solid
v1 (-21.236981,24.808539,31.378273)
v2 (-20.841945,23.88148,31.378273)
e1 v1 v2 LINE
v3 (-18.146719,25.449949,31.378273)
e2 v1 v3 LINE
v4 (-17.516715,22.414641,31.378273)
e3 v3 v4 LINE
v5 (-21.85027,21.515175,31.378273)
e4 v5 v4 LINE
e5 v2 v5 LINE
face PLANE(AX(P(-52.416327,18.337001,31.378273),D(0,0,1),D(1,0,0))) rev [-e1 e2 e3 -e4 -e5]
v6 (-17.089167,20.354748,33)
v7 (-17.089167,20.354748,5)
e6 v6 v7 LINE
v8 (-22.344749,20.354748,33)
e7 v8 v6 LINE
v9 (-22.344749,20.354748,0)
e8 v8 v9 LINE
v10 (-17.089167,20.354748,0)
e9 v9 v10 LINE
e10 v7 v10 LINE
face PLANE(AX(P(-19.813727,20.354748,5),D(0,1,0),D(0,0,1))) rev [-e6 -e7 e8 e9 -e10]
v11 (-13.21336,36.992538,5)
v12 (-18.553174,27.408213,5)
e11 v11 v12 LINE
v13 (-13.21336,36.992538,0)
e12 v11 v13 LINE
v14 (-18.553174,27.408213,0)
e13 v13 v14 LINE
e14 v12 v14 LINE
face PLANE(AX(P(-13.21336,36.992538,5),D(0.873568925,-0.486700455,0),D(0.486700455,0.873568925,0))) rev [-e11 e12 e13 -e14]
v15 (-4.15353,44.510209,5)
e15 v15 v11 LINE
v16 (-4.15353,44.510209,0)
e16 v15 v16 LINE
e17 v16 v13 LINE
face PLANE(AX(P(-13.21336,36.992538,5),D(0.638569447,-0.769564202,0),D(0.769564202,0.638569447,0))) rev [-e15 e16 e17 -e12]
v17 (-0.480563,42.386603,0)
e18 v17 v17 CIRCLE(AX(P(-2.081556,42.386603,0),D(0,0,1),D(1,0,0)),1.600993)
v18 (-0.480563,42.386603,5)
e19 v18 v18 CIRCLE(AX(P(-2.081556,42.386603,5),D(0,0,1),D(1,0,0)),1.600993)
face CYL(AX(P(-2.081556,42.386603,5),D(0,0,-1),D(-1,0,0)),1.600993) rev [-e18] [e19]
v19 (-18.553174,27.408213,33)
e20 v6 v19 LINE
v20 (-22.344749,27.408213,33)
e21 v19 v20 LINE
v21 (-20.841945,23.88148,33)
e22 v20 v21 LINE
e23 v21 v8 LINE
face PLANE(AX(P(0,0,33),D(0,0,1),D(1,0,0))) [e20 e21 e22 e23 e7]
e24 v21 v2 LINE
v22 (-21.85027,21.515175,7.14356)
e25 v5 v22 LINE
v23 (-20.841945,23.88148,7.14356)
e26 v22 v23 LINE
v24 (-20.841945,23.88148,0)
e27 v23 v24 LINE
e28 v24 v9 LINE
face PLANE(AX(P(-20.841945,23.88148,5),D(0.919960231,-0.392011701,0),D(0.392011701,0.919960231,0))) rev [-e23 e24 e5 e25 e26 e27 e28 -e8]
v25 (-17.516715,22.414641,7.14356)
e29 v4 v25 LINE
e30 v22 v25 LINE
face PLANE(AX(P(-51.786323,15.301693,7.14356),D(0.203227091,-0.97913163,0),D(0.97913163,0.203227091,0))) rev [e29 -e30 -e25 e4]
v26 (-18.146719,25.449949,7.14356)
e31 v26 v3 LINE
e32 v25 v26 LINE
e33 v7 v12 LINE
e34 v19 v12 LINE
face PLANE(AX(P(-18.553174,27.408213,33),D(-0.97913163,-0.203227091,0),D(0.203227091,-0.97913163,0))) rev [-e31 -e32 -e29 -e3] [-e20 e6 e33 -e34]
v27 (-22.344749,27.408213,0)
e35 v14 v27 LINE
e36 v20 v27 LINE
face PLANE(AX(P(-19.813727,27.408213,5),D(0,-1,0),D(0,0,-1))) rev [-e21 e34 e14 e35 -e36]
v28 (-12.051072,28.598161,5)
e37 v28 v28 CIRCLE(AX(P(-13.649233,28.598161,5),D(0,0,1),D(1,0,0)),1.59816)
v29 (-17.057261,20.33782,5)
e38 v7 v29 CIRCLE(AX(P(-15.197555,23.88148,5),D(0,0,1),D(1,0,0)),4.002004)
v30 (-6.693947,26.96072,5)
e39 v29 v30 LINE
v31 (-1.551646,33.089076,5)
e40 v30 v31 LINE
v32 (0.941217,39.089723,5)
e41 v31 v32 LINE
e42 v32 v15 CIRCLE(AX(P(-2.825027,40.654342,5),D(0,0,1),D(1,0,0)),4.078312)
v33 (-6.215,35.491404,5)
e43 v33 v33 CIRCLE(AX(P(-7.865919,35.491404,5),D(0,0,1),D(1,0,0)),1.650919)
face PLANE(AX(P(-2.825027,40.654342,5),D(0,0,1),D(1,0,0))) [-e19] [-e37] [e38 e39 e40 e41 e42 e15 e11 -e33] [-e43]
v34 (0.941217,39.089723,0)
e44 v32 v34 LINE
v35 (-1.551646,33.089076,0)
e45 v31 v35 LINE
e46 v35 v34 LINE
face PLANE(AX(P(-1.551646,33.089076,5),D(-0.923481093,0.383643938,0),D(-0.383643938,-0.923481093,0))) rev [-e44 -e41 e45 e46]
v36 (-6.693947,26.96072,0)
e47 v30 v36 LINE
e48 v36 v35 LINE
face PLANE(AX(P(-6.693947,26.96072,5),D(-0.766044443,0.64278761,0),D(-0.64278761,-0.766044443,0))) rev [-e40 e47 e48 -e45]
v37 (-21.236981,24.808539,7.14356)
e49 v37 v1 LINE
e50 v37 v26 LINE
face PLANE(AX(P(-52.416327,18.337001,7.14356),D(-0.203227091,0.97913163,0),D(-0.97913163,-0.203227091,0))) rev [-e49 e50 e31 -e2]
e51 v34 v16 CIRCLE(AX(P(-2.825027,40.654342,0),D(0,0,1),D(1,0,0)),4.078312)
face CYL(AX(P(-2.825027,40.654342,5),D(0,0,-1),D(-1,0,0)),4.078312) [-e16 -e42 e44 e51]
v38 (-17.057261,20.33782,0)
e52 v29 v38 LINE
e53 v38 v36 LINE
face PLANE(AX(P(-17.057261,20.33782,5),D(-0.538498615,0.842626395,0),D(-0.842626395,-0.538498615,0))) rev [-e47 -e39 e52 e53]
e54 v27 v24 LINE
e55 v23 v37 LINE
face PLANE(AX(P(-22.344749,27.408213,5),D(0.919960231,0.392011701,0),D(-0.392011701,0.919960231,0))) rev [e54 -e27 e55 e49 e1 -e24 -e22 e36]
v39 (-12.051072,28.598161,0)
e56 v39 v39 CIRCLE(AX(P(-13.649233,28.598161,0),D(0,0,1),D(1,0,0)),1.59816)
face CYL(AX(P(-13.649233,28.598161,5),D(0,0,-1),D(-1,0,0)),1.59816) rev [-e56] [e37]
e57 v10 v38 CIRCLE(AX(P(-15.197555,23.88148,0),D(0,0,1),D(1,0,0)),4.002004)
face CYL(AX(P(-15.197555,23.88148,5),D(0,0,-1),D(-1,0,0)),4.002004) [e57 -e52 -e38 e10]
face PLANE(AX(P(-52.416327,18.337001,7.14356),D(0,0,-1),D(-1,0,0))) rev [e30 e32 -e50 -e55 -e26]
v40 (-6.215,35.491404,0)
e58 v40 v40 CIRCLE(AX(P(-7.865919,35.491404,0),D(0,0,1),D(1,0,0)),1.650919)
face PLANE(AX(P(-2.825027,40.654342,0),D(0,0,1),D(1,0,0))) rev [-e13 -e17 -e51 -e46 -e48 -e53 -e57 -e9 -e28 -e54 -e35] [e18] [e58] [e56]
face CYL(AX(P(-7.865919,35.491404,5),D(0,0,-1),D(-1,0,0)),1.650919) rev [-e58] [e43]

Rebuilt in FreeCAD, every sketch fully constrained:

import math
import FreeCAD as App
import Part
import Sketcher
Q = App.Units.Quantity

doc = App.newDocument("Part")
params = doc.addObject("Spreadsheet::Sheet", "Params")
for row, (alias, value) in enumerate([
    ("sketch1_length", "8 mm"),
    ("pad1_length", "5 mm"),
    ("pad2_length", "28 mm"),
    ("sketch3_height", "3.1 mm"),
    ("pocket1_length", "35 mm"),
], start=1):
    params.set(f"A{row}", alias)
    params.set(f"B{row}", "=" + value)
    params.setAlias(f"B{row}", alias)

body = doc.addObject("PartDesign::Body", "Body")

sketch1 = doc.addObject("Sketcher::SketchObject", "Sketch")
body.addObject(sketch1)
sketch1.AttachmentSupport = (doc.XY_Plane, [""])
sketch1.MapMode = "FlatFace"
sketch1.addGeometry([
    Part.LineSegment(App.Vector(-22.344749, 27.408213, 0), App.Vector(-20.841945, 23.88148, 0)),
    Part.LineSegment(App.Vector(-20.841945, 23.88148, 0), App.Vector(-22.344749, 20.354748, 0)),
    Part.LineSegment(App.Vector(-22.344749, 20.354748, 0), App.Vector(-17.089167, 20.354748, 0)),
    Part.ArcOfCircle(Part.Circle(App.Vector(-15.19755, 23.881489, 0), App.Vector(0, 0, 1), 4.002014), math.radians(-118.207511), math.radians(-117.69041)),
    Part.LineSegment(App.Vector(-17.057261, 20.33782, 0), App.Vector(-6.693947, 26.96072, 0)),
    Part.LineSegment(App.Vector(-6.693947, 26.96072, 0), App.Vector(-1.551646, 33.089076, 0)),
    Part.LineSegment(App.Vector(-1.551646, 33.089076, 0), App.Vector(0.941217, 39.089723, 0)),
    Part.ArcOfCircle(Part.Circle(App.Vector(-2.825027, 40.654342, 0), App.Vector(0, 0, 1), 4.078312), math.radians(-22.55958), math.radians(109.010911)),
    Part.LineSegment(App.Vector(-4.15353, 44.510209, 0), App.Vector(-13.21336, 36.992538, 0)),
    Part.LineSegment(App.Vector(-13.21336, 36.992538, 0), App.Vector(-18.553174, 27.408213, 0)),
    Part.LineSegment(App.Vector(-18.553174, 27.408213, 0), App.Vector(-22.344749, 27.408213, 0)),
    Part.Circle(App.Vector(-13.649233, 28.598161, 0), App.Vector(0, 0, 1), 1.59816),
    Part.Circle(App.Vector(-7.865919, 35.491404, 0), App.Vector(0, 0, 1), 1.650919),
    Part.Circle(App.Vector(-2.081556, 42.386603, 0), App.Vector(0, 0, 1), 1.600993),
], False)
sketch1.addConstraint([
    Sketcher.Constraint("Coincident", 0, 2, 1, 1),
    Sketcher.Constraint("Coincident", 1, 2, 2, 1),
    Sketcher.Constraint("Coincident", 2, 2, 3, 1),
    Sketcher.Constraint("Coincident", 3, 2, 4, 1),
    Sketcher.Constraint("Coincident", 4, 2, 5, 1),
    Sketcher.Constraint("Coincident", 5, 2, 6, 1),
    Sketcher.Constraint("Tangent", 6, 2, 7, 1),
    Sketcher.Constraint("Coincident", 7, 2, 8, 1),
    Sketcher.Constraint("Coincident", 8, 2, 9, 1),
    Sketcher.Constraint("Coincident", 9, 2, 10, 1),
    Sketcher.Constraint("Coincident", 10, 2, 0, 1),
    Sketcher.Constraint("Horizontal", 2),
    Sketcher.Constraint("Horizontal", 10),
    Sketcher.Constraint("Vertical", 1, 2, 10, 2),
    Sketcher.Constraint("Equal", 0, 1),
    Sketcher.Constraint("Angle", 5, Q("50 deg")),
    Sketcher.Constraint("Distance", 5, Q("8 mm")),
    Sketcher.Constraint("Diameter", 11, Q("3.196321 mm")),
    Sketcher.Constraint("Diameter", 12, Q("3.301838 mm")),
    Sketcher.Constraint("Diameter", 13, Q("3.201987 mm")),
    Sketcher.Constraint("Radius", 3, Q("4.002014 mm")),
    Sketcher.Constraint("Radius", 7, Q("4.078312 mm")),
    Sketcher.Constraint("DistanceX", 2, 1, 2, 2, Q("5.255582 mm")),
    Sketcher.Constraint("DistanceY", 12, 3, 13, 3, Q("6.895198 mm")),
    Sketcher.Constraint("DistanceX", 1, 2, 3, 3, Q("7.147199 mm")),
    Sketcher.Constraint("DistanceY", 3, 2, 4, 2, Q("6.6229 mm")),
    Sketcher.Constraint("Distance", 0, Q("3.83357 mm")),
    Sketcher.Constraint("Distance", 9, Q("10.971458 mm")),
    Sketcher.Constraint("DistanceX", 10, 2, 10, 1, Q("3.791575 mm")),
    Sketcher.Constraint("DistanceX", 3, 3, -1, 1, Q("15.19755 mm")),
    Sketcher.Constraint("DistanceY", -1, 1, 3, 3, Q("23.881489 mm")),
    Sketcher.Constraint("DistanceY", -1, 1, 11, 3, Q("28.598161 mm")),
    Sketcher.Constraint("DistanceX", 12, 3, -1, 1, Q("7.865919 mm")),
    Sketcher.Constraint("DistanceY", -1, 1, 0, 2, Q("23.88148 mm")),
    Sketcher.Constraint("DistanceX", 3, 2, -1, 1, Q("17.057261 mm")),
    Sketcher.Constraint("DistanceX", 7, 2, -1, 1, Q("4.15353 mm")),
    Sketcher.Constraint("DistanceY", -1, 1, 7, 2, Q("44.510209 mm")),
    Sketcher.Constraint("DistanceX", 8, 2, -1, 1, Q("13.21336 mm")),
    Sketcher.Constraint("DistanceY", 11, 3, 7, 3, Q("12.056182 mm")),
    Sketcher.Constraint("DistanceY", 12, 3, 7, 3, Q("5.162938 mm")),
    Sketcher.Constraint("DistanceX", 7, 3, 13, 3, Q("0.743471 mm")),
    Sketcher.Constraint("DistanceX", 0, 2, 11, 3, Q("7.192712 mm")),
    Sketcher.Constraint("DistanceX", 2, 2, 4, 2, Q("10.39522 mm")),
])
sketch1.setExpression("Constraints[16]", "Params.sketch1_length")
pad1 = doc.addObject("PartDesign::Pad", "Pad")
body.addObject(pad1)
pad1.Profile = sketch1
pad1.setExpression("Length", "Params.pad1_length")

sketch2 = doc.addObject("Sketcher::SketchObject", "Sketch001")
body.addObject(sketch2)
sketch2.AttachmentSupport = (doc.XY_Plane, [""])
sketch2.MapMode = "FlatFace"
sketch2.AttachmentOffset = App.Placement(App.Vector(0, 0, 5), App.Rotation())
sketch2.addGeometry([
    Part.LineSegment(App.Vector(-22.344749, 20.354748, 0), App.Vector(-17.089167, 20.354748, 0)),
    Part.LineSegment(App.Vector(-17.089167, 20.354748, 0), App.Vector(-18.553174, 27.408213, 0)),
    Part.LineSegment(App.Vector(-18.553174, 27.408213, 0), App.Vector(-22.344749, 27.408213, 0)),
    Part.LineSegment(App.Vector(-22.344749, 27.408213, 0), App.Vector(-20.841945, 23.88148, 0)),
    Part.LineSegment(App.Vector(-20.841945, 23.88148, 0), App.Vector(-22.344749, 20.354748, 0)),
], False)
sketch2.addConstraint([
    Sketcher.Constraint("Coincident", 0, 2, 1, 1),
    Sketcher.Constraint("Coincident", 1, 2, 2, 1),
    Sketcher.Constraint("Coincident", 2, 2, 3, 1),
    Sketcher.Constraint("Coincident", 3, 2, 4, 1),
    Sketcher.Constraint("Coincident", 4, 2, 0, 1),
    Sketcher.Constraint("Horizontal", 0),
    Sketcher.Constraint("Horizontal", 2),
    Sketcher.Constraint("Vertical", 2, 2, 4, 2),
    Sketcher.Constraint("Equal", 3, 4),
    Sketcher.Constraint("DistanceX", 0, 1, 0, 2, Q("5.255582 mm")),
    Sketcher.Constraint("Distance", 3, Q("3.83357 mm")),
    Sketcher.Constraint("DistanceX", 2, 2, 2, 1, Q("3.791575 mm")),
    Sketcher.Constraint("DistanceY", -1, 1, 0, 2, Q("20.354748 mm")),
    Sketcher.Constraint("DistanceX", 2, 2, -1, 1, Q("22.344749 mm")),
    Sketcher.Constraint("DistanceY", -1, 1, 3, 2, Q("23.88148 mm")),
])
pad2 = doc.addObject("PartDesign::Pad", "Pad001")
body.addObject(pad2)
pad2.Profile = sketch2
pad2.setExpression("Length", "Params.pad2_length")

sketch3 = doc.addObject("Sketcher::SketchObject", "Sketch002")
body.addObject(sketch3)
sketch3.Placement = App.Placement(App.Vector(-12.333052, -2.55983, 0), App.Rotation(App.Vector(0, 0, -1), App.Vector(-0.203227091, 0.97913163, 0), App.Vector(0.97913163, 0.203227091, 0), "ZXY"))
sketch3.addGeometry([
    Part.LineSegment(App.Vector(-31.378273, 28.606755, 0), App.Vector(-31.378273, 25.506755, 0)),
    Part.LineSegment(App.Vector(-31.378273, 25.506755, 0), App.Vector(-7.14356, 25.506755, 0)),
    Part.LineSegment(App.Vector(-7.14356, 25.506755, 0), App.Vector(-7.14356, 28.606755, 0)),
    Part.LineSegment(App.Vector(-7.14356, 28.606755, 0), App.Vector(-31.378273, 28.606755, 0)),
], False)
sketch3.addConstraint([
    Sketcher.Constraint("Coincident", 0, 2, 1, 1),
    Sketcher.Constraint("Coincident", 1, 2, 2, 1),
    Sketcher.Constraint("Coincident", 2, 2, 3, 1),
    Sketcher.Constraint("Coincident", 3, 2, 0, 1),
    Sketcher.Constraint("Vertical", 0),
    Sketcher.Constraint("Horizontal", 1),
    Sketcher.Constraint("Vertical", 2),
    Sketcher.Constraint("Horizontal", 3),
    Sketcher.Constraint("DistanceY", 0, 2, 0, 1, Q("3.1 mm")),
    Sketcher.Constraint("DistanceX", 1, 1, 1, 2, Q("24.234713 mm")),
    Sketcher.Constraint("DistanceX", 1, 2, -1, 1, Q("7.14356 mm")),
    Sketcher.Constraint("DistanceY", -1, 1, 0, 2, Q("25.506755 mm")),
])
sketch3.setExpression("Constraints[8]", "Params.sketch3_height")
pocket1 = doc.addObject("PartDesign::Pocket", "Pocket")
body.addObject(pocket1)
pocket1.Profile = sketch3
pocket1.setExpression("Length", "Params.pocket1_length")

doc.recompute()
